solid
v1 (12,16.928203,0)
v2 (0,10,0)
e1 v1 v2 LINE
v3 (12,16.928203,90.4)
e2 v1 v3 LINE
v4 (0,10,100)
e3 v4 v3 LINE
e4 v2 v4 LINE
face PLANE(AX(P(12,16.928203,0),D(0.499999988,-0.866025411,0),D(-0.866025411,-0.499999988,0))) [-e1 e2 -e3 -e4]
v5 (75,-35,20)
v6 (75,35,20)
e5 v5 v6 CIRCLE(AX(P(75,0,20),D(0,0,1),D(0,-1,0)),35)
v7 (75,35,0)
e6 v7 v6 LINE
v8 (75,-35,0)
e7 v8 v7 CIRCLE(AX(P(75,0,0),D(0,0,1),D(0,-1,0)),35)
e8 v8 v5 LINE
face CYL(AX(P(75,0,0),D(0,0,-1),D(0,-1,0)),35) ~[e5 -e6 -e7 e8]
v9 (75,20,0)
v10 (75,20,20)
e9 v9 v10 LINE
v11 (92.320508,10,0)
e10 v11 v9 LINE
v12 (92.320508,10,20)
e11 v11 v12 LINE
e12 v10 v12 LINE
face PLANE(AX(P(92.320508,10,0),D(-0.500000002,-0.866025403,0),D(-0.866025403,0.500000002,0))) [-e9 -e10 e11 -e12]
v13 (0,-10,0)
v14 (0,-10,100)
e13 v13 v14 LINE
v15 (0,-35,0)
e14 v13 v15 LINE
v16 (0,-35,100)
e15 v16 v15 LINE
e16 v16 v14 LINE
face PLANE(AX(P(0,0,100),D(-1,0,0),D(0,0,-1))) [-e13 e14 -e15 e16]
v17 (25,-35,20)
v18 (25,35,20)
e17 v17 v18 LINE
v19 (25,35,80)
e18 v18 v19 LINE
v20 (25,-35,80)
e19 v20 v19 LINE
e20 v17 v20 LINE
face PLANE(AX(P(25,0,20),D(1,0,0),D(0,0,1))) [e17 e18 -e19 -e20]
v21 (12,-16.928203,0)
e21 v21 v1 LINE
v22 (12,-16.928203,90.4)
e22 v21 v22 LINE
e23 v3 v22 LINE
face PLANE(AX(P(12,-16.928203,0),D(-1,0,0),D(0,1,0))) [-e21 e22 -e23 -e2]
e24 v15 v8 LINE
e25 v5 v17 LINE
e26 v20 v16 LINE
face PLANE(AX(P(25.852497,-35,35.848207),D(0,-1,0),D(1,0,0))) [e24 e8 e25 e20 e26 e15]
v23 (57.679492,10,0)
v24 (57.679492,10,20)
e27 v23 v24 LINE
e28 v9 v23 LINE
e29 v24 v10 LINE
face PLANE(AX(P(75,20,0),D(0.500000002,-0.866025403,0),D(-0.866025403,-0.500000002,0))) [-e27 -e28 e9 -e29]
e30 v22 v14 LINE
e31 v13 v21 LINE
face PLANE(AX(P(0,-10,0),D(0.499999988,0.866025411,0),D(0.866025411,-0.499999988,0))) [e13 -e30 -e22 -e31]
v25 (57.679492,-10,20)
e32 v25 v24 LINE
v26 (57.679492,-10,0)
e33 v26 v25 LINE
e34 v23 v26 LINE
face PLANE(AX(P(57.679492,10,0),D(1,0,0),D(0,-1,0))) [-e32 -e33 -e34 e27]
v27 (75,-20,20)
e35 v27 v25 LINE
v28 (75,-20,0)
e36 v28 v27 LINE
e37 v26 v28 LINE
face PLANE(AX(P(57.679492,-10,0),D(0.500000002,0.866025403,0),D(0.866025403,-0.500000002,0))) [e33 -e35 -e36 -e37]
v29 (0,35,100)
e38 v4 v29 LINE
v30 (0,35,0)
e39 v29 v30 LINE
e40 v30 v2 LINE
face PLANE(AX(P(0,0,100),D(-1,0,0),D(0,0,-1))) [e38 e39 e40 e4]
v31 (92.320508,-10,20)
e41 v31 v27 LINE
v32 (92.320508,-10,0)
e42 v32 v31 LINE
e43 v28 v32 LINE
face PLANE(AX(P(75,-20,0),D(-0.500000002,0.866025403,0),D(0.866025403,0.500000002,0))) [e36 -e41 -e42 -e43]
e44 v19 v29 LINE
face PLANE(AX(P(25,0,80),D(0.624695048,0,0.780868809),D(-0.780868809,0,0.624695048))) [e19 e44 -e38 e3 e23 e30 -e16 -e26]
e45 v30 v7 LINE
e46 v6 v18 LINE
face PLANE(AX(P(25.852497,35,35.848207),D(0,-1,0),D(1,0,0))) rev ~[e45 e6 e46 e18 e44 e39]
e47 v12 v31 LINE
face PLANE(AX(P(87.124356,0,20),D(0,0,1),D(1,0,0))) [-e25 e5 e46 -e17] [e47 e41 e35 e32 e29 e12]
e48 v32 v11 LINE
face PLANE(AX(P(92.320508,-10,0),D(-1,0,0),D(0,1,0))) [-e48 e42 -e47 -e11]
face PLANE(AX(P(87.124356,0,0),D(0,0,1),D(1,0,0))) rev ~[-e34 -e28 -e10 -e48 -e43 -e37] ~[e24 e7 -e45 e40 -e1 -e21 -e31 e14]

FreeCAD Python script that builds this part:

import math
import FreeCAD as App
import Part
import Sketcher
from FreeCAD import Vector
Q = App.Units.Quantity

doc = App.newDocument("Part")
body = doc.addObject("PartDesign::Body", "Body")

# Sketch on XZ plane
sketch1 = body.newObject("Sketcher::SketchObject", "Sketch")
sketch1.AttachmentSupport = (doc.getObject("XZ_Plane"), [""])
sketch1.MapMode = "FlatFace"
sketch1.addGeometry(Part.LineSegment(Vector(0, 100, 0), Vector(0, 0, 0)), False)
sketch1.addGeometry(Part.LineSegment(Vector(0, 0, 0), Vector(75, 0, 0)), False)
sketch1.addGeometry(Part.LineSegment(Vector(75, 0, 0), Vector(75, 20, 0)), False)
sketch1.addGeometry(Part.LineSegment(Vector(75, 20, 0), Vector(25, 20, 0)), False)
sketch1.addGeometry(Part.LineSegment(Vector(25, 20, 0), Vector(25, 80, 0)), False)
sketch1.addGeometry(Part.LineSegment(Vector(25, 80, 0), Vector(0, 100, 0)), False)
sketch1.addConstraint(Sketcher.Constraint("Coincident", 0, 2, 1, 1))
sketch1.addConstraint(Sketcher.Constraint("Coincident", 1, 2, 2, 1))
sketch1.addConstraint(Sketcher.Constraint("Coincident", 2, 2, 3, 1))
sketch1.addConstraint(Sketcher.Constraint("Coincident", 3, 2, 4, 1))
sketch1.addConstraint(Sketcher.Constraint("Coincident", 4, 2, 5, 1))
sketch1.addConstraint(Sketcher.Constraint("Coincident", 5, 2, 0, 1))
sketch1.addConstraint(Sketcher.Constraint("Vertical", 0))
sketch1.addConstraint(Sketcher.Constraint("Horizontal", 1))
sketch1.addConstraint(Sketcher.Constraint("Vertical", 2))
sketch1.addConstraint(Sketcher.Constraint("Horizontal", 3))
sketch1.addConstraint(Sketcher.Constraint("Vertical", 4))
sketch1.addConstraint(Sketcher.Constraint("Coincident", 0, 2, -1, 1))
sketch1.addConstraint(Sketcher.Constraint("DistanceX", 1, 1, 1, 2, Q("75 mm")))
sketch1.addConstraint(Sketcher.Constraint("DistanceX", 3, 2, 3, 1, Q("50 mm")))
sketch1.addConstraint(Sketcher.Constraint("DistanceY", 0, 2, 0, 1, Q("100 mm")))
sketch1.addConstraint(Sketcher.Constraint("DistanceY", 2, 1, 2, 2, Q("20 mm")))
sketch1.addConstraint(Sketcher.Constraint("DistanceY", 4, 1, 4, 2, Q("60 mm")))
pad1 = body.newObject("PartDesign::Pad", "Pad")
pad1.Profile = sketch1
pad1.Length = 70
pad1.Midplane = True

# Sketch on XY plane
sketch2 = body.newObject("Sketcher::SketchObject", "Sketch001")
sketch2.AttachmentSupport = (doc.getObject("XY_Plane"), [""])
sketch2.MapMode = "FlatFace"
sketch2.addGeometry(Part.ArcOfCircle(Part.Circle(Vector(75, 0, 0), Vector(0, 0, 1), 35), math.radians(-90), math.radians(90)), False)
sketch2.addGeometry(Part.LineSegment(Vector(75, 35, 0), Vector(75, -35, 0)), False)
sketch2.addConstraint(Sketcher.Constraint("Coincident", 0, 1, 1, 2))
sketch2.addConstraint(Sketcher.Constraint("Coincident", 1, 1, 0, 2))
sketch2.addConstraint(Sketcher.Constraint("Vertical", 1))
sketch2.addConstraint(Sketcher.Constraint("PointOnObject", 0, 3, -1))
sketch2.addConstraint(Sketcher.Constraint("Radius", 0, Q("35 mm")))
sketch2.addConstraint(Sketcher.Constraint("DistanceX", -1, 1, 0, 3, Q("75 mm")))
sketch2.addConstraint(Sketcher.Constraint("DistanceX", -1, 1, 0, 1, Q("75 mm")))
pad2 = body.newObject("PartDesign::Pad", "Pad001")
pad2.Profile = sketch2
pad2.Length = 20

# Sketch on XY plane
sketch3 = body.newObject("Sketcher::SketchObject", "Sketch002")
sketch3.AttachmentSupport = (doc.getObject("XY_Plane"), [""])
sketch3.MapMode = "FlatFace"
sketch3.addGeometry(Part.LineSegment(Vector(0, 10, 0), Vector(0, -10, 0)), False)
sketch3.addGeometry(Part.LineSegment(Vector(0, -10, 0), Vector(12, -16.928203, 0)), False)
sketch3.addGeometry(Part.LineSegment(Vector(12, -16.928203, 0), Vector(12, 16.928203, 0)), False)
sketch3.addGeometry(Part.LineSegment(Vector(12, 16.928203, 0), Vector(0, 10, 0)), False)
sketch3.addGeometry(Part.LineSegment(Vector(57.679492, -10, 0), Vector(75, -20, 0)), False)
sketch3.addGeometry(Part.LineSegment(Vector(75, -20, 0), Vector(92.320508, -10, 0)), False)
sketch3.addGeometry(Part.LineSegment(Vector(92.320508, -10, 0), Vector(92.320508, 10, 0)), False)
sketch3.addGeometry(Part.LineSegment(Vector(92.320508, 10, 0), Vector(75, 20, 0)), False)
sketch3.addGeometry(Part.LineSegment(Vector(75, 20, 0), Vector(57.679492, 10, 0)), False)
sketch3.addGeometry(Part.LineSegment(Vector(57.679492, 10, 0), Vector(57.679492, -10, 0)), False)
sketch3.addConstraint(Sketcher.Constraint("Coincident", 0, 2, 1, 1))
sketch3.addConstraint(Sketcher.Constraint("Coincident", 1, 2, 2, 1))
sketch3.addConstraint(Sketcher.Constraint("Coincident", 2, 2, 3, 1))
sketch3.addConstraint(Sketcher.Constraint("Coincident", 3, 2, 0, 1))
sketch3.addConstraint(Sketcher.Constraint("Coincident", 4, 2, 5, 1))
sketch3.addConstraint(Sketcher.Constraint("Coincident", 5, 2, 6, 1))
sketch3.addConstraint(Sketcher.Constraint("Coincident", 6, 2, 7, 1))
sketch3.addConstraint(Sketcher.Constraint("Coincident", 7, 2, 8, 1))
sketch3.addConstraint(Sketcher.Constraint("Coincident", 8, 2, 9, 1))
sketch3.addConstraint(Sketcher.Constraint("Coincident", 9, 2, 4, 1))
sketch3.addConstraint(Sketcher.Constraint("Vertical", 0))
sketch3.addConstraint(Sketcher.Constraint("Vertical", 2))
sketch3.addConstraint(Sketcher.Constraint("Vertical", 6))
sketch3.addConstraint(Sketcher.Constraint("Vertical", 9))
sketch3.addConstraint(Sketcher.Constraint("Symmetric", 0, 2, 3, 2, -1, 1))
sketch3.addConstraint(Sketcher.Constraint("Symmetric", 4, 2, 7, 2, -1))
sketch3.addConstraint(Sketcher.Constraint("Parallel", 1, 4))
sketch3.addConstraint(Sketcher.Constraint("Parallel", 3, 5))
sketch3.addConstraint(Sketcher.Constraint("Parallel", 4, 7))
sketch3.addConstraint(Sketcher.Constraint("Parallel", 5, 8))
sketch3.addConstraint(Sketcher.Constraint("Horizontal", 0, 2, 5, 2))
sketch3.addConstraint(Sketcher.Constraint("Horizontal", 3, 2, 6, 2))
sketch3.addConstraint(Sketcher.Constraint("Horizontal", 6, 2, 8, 2))
sketch3.addConstraint(Sketcher.Constraint("DistanceY", 0, 2, 0, 1, Q("20 mm")))
sketch3.addConstraint(Sketcher.Constraint("Angle", 1, Q("-29.999999 deg")))
sketch3.addConstraint(Sketcher.Constraint("Distance", 4, Q("20 mm")))
sketch3.addConstraint(Sketcher.Constraint("DistanceX", -1, 1, 1, 2, Q("12 mm")))
sketch3.addConstraint(Sketcher.Constraint("DistanceX", -1, 1, 4, 2, Q("75 mm")))
pocket1 = body.newObject("PartDesign::Pocket", "Pocket")
pocket1.Profile = sketch3
pocket1.Type = "ThroughAll"
pocket1.Reversed = True

doc.recompute()
